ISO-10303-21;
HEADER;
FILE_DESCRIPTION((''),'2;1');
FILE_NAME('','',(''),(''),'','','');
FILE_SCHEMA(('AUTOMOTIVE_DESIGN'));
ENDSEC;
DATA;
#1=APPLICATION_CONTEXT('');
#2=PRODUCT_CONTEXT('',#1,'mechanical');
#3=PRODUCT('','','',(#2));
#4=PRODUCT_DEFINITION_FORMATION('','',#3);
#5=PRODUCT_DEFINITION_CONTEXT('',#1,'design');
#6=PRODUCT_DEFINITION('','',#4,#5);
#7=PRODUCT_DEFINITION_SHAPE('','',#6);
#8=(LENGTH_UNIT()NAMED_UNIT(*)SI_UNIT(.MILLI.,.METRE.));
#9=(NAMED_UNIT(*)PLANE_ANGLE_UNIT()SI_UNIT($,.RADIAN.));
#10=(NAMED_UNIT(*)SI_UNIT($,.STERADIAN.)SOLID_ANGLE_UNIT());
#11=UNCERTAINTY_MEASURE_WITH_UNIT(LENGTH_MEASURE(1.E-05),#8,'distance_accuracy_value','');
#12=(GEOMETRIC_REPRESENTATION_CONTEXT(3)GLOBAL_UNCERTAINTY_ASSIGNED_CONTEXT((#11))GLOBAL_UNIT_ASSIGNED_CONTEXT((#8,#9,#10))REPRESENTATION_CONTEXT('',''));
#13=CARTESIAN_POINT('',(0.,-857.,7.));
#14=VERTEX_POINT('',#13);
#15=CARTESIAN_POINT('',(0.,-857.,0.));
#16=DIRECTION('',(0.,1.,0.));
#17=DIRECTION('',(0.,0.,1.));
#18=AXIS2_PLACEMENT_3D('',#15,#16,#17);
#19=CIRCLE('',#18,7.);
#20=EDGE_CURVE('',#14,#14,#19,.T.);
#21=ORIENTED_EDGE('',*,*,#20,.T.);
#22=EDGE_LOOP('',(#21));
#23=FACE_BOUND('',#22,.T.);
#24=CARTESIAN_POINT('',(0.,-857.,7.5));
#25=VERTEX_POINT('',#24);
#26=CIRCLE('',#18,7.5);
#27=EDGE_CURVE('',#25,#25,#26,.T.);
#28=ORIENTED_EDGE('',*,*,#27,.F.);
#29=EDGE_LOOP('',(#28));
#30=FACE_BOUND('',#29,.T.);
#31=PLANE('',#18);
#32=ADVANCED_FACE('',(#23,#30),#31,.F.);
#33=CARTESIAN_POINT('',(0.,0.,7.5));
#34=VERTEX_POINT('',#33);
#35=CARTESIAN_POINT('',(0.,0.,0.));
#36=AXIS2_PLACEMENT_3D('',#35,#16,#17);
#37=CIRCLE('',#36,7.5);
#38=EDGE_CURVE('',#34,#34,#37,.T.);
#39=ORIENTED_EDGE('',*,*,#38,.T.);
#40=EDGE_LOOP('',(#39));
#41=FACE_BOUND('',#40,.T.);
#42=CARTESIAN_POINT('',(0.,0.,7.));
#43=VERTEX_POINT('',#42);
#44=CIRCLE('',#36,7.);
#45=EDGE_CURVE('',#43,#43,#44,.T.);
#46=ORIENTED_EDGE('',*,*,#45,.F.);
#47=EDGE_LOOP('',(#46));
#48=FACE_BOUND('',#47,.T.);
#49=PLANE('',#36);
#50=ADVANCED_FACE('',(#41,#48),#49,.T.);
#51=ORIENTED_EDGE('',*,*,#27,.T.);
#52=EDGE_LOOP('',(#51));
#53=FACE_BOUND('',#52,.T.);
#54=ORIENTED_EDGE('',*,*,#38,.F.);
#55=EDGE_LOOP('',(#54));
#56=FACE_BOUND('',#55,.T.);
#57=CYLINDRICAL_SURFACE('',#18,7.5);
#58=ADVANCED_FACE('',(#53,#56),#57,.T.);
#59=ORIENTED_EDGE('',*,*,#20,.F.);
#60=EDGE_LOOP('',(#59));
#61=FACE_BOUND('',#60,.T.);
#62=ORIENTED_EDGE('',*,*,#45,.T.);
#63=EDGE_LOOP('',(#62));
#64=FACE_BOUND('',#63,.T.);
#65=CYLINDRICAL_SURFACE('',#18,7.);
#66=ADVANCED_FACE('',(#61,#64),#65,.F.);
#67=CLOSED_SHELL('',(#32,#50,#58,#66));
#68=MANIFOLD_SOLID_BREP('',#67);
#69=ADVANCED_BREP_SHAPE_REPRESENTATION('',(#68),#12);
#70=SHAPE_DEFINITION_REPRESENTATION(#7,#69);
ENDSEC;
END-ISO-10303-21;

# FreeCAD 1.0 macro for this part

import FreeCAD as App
import Part
import Sketcher
Q = App.Units.Quantity

doc = App.newDocument("Part")
params = doc.addObject("Spreadsheet::Sheet", "Params")
for row, (alias, value) in enumerate([
    ("sketch1_diameter", "15 mm"),
    ("pad1_length", "857 mm"),
    ("sketch2_diameter", "14 mm"),
], start=1):
    params.set(f"A{row}", alias)
    params.set(f"B{row}", "=" + value)
    params.setAlias(f"B{row}", alias)

body = doc.addObject("PartDesign::Body", "Body")

# Sketch on XZ plane
sketch1 = body.newObject("Sketcher::SketchObject", "Sketch")
sketch1.AttachmentSupport = (doc.getObject("XZ_Plane"), [""])
sketch1.MapMode = "FlatFace"
sketch1.addGeometry(Part.Circle(App.Vector(0, 0, 0), App.Vector(0, 0, 1), 8), False)
sketch1.addConstraint([
    Sketcher.Constraint("Coincident", 0, 3, -1, 1),
    Sketcher.Constraint("Diameter", 0, Q("15 mm")),
])
sketch1.setExpression("Constraints[1]", "Params.sketch1_diameter")
pad1 = body.newObject("PartDesign::Pad", "Pad")
pad1.Profile = sketch1
pad1.setExpression("Length", "Params.pad1_length")

# Sketch on XZ plane
sketch2 = body.newObject("Sketcher::SketchObject", "Sketch001")
sketch2.AttachmentSupport = (doc.getObject("XZ_Plane"), [""])
sketch2.MapMode = "FlatFace"
sketch2.addGeometry(Part.Circle(App.Vector(0, 0, 0), App.Vector(0, 0, 1), 7), False)
sketch2.addConstraint([
    Sketcher.Constraint("Coincident", 0, 3, -1, 1),
    Sketcher.Constraint("Diameter", 0, Q("14 mm")),
])
sketch2.setExpression("Constraints[1]", "Params.sketch2_diameter")
pocket1 = body.newObject("PartDesign::Pocket", "Pocket")
pocket1.Profile = sketch2
pocket1.Type = "ThroughAll"
pocket1.Reversed = True

doc.recompute()
